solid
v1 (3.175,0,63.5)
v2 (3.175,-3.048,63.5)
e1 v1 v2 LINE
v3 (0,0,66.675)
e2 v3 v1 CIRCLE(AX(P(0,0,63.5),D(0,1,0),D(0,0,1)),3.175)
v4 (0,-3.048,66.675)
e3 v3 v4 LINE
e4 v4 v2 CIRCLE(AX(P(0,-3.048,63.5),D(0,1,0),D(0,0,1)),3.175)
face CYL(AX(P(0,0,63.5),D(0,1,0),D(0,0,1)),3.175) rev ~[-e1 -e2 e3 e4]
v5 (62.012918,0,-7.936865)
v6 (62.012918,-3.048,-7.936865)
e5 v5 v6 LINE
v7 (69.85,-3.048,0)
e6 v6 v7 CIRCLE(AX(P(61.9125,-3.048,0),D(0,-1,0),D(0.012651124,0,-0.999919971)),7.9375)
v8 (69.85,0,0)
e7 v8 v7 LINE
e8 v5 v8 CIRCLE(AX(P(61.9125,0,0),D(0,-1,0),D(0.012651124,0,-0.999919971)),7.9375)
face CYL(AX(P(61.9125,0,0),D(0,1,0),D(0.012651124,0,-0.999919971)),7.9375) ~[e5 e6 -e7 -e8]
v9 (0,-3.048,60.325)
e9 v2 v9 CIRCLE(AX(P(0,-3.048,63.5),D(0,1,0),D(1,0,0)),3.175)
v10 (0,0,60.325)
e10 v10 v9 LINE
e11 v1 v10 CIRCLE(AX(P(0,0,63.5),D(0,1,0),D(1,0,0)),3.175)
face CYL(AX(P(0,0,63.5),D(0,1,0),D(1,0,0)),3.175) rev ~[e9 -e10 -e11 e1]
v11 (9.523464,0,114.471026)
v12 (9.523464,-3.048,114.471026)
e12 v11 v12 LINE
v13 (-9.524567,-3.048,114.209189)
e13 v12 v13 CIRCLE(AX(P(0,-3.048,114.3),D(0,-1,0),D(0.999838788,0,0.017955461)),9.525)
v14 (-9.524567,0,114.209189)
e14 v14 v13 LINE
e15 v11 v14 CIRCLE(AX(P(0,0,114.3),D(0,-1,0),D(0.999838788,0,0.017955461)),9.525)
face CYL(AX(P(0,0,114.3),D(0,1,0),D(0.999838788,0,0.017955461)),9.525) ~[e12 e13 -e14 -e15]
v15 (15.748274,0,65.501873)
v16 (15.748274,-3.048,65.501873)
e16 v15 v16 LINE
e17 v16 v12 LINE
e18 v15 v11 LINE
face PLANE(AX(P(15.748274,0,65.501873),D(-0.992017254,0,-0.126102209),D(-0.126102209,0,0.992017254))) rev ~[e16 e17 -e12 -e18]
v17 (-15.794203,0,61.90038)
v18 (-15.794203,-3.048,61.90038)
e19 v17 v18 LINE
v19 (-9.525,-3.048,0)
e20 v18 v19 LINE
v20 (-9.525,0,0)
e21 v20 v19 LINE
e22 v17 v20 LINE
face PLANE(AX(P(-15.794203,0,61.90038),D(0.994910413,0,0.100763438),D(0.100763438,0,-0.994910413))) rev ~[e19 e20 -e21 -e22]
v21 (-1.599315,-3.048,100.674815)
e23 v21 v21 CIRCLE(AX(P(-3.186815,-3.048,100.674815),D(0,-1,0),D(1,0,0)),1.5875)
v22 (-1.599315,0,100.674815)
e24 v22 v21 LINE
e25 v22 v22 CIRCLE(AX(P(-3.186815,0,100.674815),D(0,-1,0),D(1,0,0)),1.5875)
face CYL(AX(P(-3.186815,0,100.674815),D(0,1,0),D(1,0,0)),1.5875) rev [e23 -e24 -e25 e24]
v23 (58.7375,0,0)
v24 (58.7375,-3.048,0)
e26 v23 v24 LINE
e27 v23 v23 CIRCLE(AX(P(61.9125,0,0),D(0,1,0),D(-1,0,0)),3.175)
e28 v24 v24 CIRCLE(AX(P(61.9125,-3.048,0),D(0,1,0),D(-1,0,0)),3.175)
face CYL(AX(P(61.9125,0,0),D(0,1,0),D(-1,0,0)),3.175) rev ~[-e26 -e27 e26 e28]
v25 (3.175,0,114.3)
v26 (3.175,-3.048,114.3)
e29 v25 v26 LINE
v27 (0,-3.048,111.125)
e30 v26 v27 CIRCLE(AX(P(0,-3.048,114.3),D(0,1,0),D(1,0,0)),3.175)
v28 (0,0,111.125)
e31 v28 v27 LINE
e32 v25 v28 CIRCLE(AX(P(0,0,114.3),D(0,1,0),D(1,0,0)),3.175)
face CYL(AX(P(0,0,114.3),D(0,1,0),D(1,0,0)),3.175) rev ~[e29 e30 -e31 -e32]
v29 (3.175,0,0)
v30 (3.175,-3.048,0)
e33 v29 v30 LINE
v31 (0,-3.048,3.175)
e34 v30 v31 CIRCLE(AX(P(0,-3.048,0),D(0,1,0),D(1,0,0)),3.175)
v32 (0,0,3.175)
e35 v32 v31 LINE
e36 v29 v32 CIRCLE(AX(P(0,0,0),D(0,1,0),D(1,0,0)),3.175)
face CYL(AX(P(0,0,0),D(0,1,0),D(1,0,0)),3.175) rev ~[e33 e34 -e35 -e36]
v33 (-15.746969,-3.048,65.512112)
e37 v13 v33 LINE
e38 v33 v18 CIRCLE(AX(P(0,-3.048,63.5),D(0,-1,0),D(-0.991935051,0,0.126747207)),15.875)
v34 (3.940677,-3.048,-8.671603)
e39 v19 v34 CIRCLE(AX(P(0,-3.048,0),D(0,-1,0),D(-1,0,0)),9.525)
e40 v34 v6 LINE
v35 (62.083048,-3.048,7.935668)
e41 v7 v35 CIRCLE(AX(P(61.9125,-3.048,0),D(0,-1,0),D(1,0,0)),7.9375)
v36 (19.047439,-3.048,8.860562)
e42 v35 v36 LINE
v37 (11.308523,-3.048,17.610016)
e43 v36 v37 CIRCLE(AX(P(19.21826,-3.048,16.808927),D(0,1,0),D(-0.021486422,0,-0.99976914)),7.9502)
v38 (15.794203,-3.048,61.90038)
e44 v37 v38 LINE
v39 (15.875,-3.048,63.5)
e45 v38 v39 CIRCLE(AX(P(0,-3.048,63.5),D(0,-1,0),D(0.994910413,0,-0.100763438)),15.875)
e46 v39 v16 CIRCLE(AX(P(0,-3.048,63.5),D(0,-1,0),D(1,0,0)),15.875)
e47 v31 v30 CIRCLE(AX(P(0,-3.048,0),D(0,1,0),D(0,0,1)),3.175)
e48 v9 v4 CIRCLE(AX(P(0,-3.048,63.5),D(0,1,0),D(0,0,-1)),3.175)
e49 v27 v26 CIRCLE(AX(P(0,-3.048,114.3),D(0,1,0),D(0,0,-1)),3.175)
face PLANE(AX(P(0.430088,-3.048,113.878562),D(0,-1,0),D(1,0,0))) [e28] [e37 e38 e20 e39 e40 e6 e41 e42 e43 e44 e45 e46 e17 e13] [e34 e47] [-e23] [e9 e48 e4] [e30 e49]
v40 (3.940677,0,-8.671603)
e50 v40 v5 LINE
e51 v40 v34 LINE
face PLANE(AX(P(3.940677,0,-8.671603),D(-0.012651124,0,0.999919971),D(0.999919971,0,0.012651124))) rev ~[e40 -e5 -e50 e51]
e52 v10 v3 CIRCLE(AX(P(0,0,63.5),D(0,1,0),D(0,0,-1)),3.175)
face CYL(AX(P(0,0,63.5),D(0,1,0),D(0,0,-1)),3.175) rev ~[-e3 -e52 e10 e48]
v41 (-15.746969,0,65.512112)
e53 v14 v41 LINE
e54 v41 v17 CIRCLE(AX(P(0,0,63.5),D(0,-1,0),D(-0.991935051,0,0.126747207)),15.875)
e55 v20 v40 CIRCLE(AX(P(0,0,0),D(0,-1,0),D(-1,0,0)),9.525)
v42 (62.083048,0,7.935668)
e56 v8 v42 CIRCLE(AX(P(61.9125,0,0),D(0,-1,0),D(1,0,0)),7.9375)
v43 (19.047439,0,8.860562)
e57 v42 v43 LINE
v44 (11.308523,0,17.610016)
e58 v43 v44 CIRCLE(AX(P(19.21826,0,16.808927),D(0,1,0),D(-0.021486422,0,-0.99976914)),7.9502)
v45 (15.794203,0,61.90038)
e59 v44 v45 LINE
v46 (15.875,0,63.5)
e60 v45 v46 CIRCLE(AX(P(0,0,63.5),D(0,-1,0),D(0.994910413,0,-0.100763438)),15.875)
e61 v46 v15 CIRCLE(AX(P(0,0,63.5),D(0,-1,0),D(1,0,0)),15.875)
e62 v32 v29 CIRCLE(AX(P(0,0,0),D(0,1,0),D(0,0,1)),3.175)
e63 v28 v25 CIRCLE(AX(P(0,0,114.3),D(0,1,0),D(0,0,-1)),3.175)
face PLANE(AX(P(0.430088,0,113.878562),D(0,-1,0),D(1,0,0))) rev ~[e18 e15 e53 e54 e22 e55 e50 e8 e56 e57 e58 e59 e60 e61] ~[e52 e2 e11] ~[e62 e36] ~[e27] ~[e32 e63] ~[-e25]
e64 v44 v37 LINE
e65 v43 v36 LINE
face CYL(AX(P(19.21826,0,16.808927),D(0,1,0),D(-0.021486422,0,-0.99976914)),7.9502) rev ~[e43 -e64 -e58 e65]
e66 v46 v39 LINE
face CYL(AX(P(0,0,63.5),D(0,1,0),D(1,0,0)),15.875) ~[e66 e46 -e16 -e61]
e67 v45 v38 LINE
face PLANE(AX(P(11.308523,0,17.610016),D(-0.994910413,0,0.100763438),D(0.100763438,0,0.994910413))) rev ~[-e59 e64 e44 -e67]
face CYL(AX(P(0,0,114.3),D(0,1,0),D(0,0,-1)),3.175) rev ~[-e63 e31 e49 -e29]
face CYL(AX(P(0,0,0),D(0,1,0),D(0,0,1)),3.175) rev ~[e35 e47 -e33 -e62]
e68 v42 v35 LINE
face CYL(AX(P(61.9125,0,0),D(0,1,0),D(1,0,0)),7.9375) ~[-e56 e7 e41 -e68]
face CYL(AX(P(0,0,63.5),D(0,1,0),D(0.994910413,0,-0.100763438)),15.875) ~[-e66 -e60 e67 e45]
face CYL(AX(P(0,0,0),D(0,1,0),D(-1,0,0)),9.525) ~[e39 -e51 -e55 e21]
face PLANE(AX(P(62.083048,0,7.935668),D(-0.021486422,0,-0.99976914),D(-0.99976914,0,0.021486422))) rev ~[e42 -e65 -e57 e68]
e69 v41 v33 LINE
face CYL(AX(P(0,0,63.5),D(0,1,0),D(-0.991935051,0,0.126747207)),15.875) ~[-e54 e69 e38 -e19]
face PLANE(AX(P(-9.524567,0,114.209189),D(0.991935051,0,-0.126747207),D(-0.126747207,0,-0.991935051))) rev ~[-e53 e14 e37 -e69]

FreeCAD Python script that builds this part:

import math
import FreeCAD as App
import Part
import Sketcher

V = App.Vector
Q = App.Units.Quantity

doc = App.newDocument("Part")
params = doc.addObject("Spreadsheet::Sheet", "Params")
for row, (alias, value) in enumerate([
    ("sketch1_diameter", "0.25 in"),
    ("sketch1_diameter2", "0.125 in"),
    ("sketch1_radius", "0.375 in"),
    ("sketch1_radius2", "0.3125 in"),
    ("sketch1_radius3", "0.313 in"),
    ("pad1_length", "0.12 in"),
], start=1):
    params.set(f"A{row}", alias)
    params.set(f"B{row}", "=" + value)
    params.setAlias(f"B{row}", alias)

body = doc.addObject("PartDesign::Body", "Body")

# Sketch on XZ plane
sketch1 = body.newObject("Sketcher::SketchObject", "Sketch")
sketch1.AttachmentSupport = (doc.getObject("XZ_Plane"), [""])
sketch1.MapMode = "FlatFace"
sketch1.addGeometry([
    Part.ArcOfCircle(Part.Circle(V(0, 0, 0), V(0, 0, 1), 9.525), math.radians(180), math.radians(294.438692)),  # 0
    Part.LineSegment(V(3.940677, -8.671603, 0), V(62.012918, -7.936865, 0)),  # 1
    Part.ArcOfCircle(Part.Circle(V(61.9125, 0, 0), V(0, 0, 1), 7.9375), math.radians(-89.275125), math.radians(0)),  # 2
    Part.ArcOfCircle(Part.Circle(V(61.9125, 0, 0), V(0, 0, 1), 7.9375), math.radians(0), math.radians(88.768824)),  # 3
    Part.LineSegment(V(62.083048, 7.935668, 0), V(19.047439, 8.860562, 0)),  # 4
    Part.ArcOfCircle(Part.Circle(V(19.21826, 16.808927, 0), V(0, 0, 1), 7.9502), math.radians(174.216866), math.radians(268.768824)),  # 5
    Part.LineSegment(V(11.308523, 17.610016, 0), V(15.794203, 61.90038, 0)),  # 6
    Part.ArcOfCircle(Part.Circle(V(0, 63.5, 0), V(0, 0, 1), 15.875), math.radians(-5.783134), math.radians(0)),  # 7
    Part.ArcOfCircle(Part.Circle(V(0, 63.5, 0), V(0, 0, 1), 15.875), math.radians(0), math.radians(7.244411)),  # 8
    Part.LineSegment(V(15.748274, 65.501873, 0), V(9.523464, 114.471026, 0)),  # 9
    Part.ArcOfCircle(Part.Circle(V(0, 114.3, 0), V(0, 0, 1), 9.525), math.radians(1.028827), math.radians(180.546265)),  # 10
    Part.LineSegment(V(-9.524567, 114.209189, 0), V(-15.746969, 65.512112, 0)),  # 11
    Part.ArcOfCircle(Part.Circle(V(0, 63.5, 0), V(0, 0, 1), 15.875), math.radians(172.718334), math.radians(185.783134)),  # 12
    Part.LineSegment(V(-15.794203, 61.90038, 0), V(-9.525, 0, 0)),  # 13
    Part.ArcOfCircle(Part.Circle(V(0, 0, 0), V(0, 0, 1), 3.175), math.radians(90), math.radians(360)),  # 14
    Part.ArcOfCircle(Part.Circle(V(0, 0, 0), V(0, 0, 1), 3.175), math.radians(0), math.radians(90)),  # 15
    Part.Circle(V(61.9125, 0, 0), V(0, 0, 1), 3.175),  # 16
    Part.ArcOfCircle(Part.Circle(V(0, 63.5, 0), V(0, 0, 1), 3.175), math.radians(0), math.radians(90)),  # 17
    Part.ArcOfCircle(Part.Circle(V(0, 63.5, 0), V(0, 0, 1), 3.175), math.radians(-90), math.radians(0)),  # 18
    Part.ArcOfCircle(Part.Circle(V(0, 63.5, 0), V(0, 0, 1), 3.175), math.radians(90), math.radians(270)),  # 19
    Part.Circle(V(-3.186815, 100.674815, 0), V(0, 0, 1), 1.5875),  # 20
    Part.ArcOfCircle(Part.Circle(V(0, 114.3, 0), V(0, 0, 1), 3.175), math.radians(0), math.radians(270)),  # 21
    Part.ArcOfCircle(Part.Circle(V(0, 114.3, 0), V(0, 0, 1), 3.175), math.radians(-90), math.radians(0)),  # 22
], False)
sketch1.addConstraint([
    Sketcher.Constraint("Coincident", 0, 2, 1, 1),
    Sketcher.Constraint("Coincident", 1, 2, 2, 1),
    Sketcher.Constraint("Coincident", 2, 2, 3, 1),
    Sketcher.Constraint("Coincident", 3, 2, 4, 1),
    Sketcher.Constraint("Coincident", 4, 2, 5, 2),
    Sketcher.Constraint("Coincident", 5, 1, 6, 1),
    Sketcher.Constraint("Coincident", 6, 2, 7, 1),
    Sketcher.Constraint("Coincident", 7, 2, 8, 1),
    Sketcher.Constraint("Coincident", 8, 2, 9, 1),
    Sketcher.Constraint("Coincident", 9, 2, 10, 1),
    Sketcher.Constraint("Coincident", 10, 2, 11, 1),
    Sketcher.Constraint("Coincident", 11, 2, 12, 1),
    Sketcher.Constraint("Coincident", 12, 2, 13, 1),
    Sketcher.Constraint("Coincident", 13, 2, 0, 1),
    Sketcher.Constraint("Coincident", 14, 1, 15, 2),
    Sketcher.Constraint("Coincident", 15, 1, 14, 2),
    Sketcher.Constraint("Coincident", 17, 1, 18, 2),
    Sketcher.Constraint("Coincident", 18, 1, 19, 2),
    Sketcher.Constraint("Coincident", 19, 1, 17, 2),
    Sketcher.Constraint("Coincident", 21, 1, 22, 2),
    Sketcher.Constraint("Coincident", 22, 1, 21, 2),
    Sketcher.Constraint("Coincident", 0, 3, -1, 1),
    Sketcher.Constraint("Coincident", 14, 3, -1, 1),
    Sketcher.Constraint("Coincident", 3, 3, 2, 3),
    Sketcher.Constraint("Coincident", 8, 3, 7, 3),
    Sketcher.Constraint("Coincident", 12, 3, 7, 3),
    Sketcher.Constraint("Coincident", 16, 3, 2, 3),
    Sketcher.Constraint("Coincident", 17, 3, 7, 3),
    Sketcher.Constraint("Coincident", 18, 3, 7, 3),
    Sketcher.Constraint("Coincident", 21, 3, 10, 3),
    Sketcher.Constraint("PointOnObject", 2, 3, -1),
    Sketcher.Constraint("PointOnObject", 7, 3, -2),
    Sketcher.Constraint("PointOnObject", 10, 3, -2),
    Sketcher.Constraint("PointOnObject", 19, 3, -2),
    Sketcher.Constraint("PointOnObject", 22, 3, -2),
    Sketcher.Constraint("PointOnObject", 2, 2, -1),
    Sketcher.Constraint("PointOnObject", 13, 2, -1),
    Sketcher.Constraint("PointOnObject", 14, 1, -2),
    Sketcher.Constraint("PointOnObject", 15, 1, -1),
    Sketcher.Constraint("PointOnObject", 18, 1, -2),
    Sketcher.Constraint("PointOnObject", 19, 1, -2),
    Sketcher.Constraint("PointOnObject", 22, 1, -2),
    Sketcher.Constraint("Diameter", 16, Q("0.25 in")),
    Sketcher.Constraint("Diameter", 20, Q("0.125 in")),
    Sketcher.Constraint("Radius", 0, Q("0.375 in")),
    Sketcher.Constraint("Radius", 2, Q("0.3125 in")),
    Sketcher.Constraint("Radius", 5, Q("0.313 in")),
    Sketcher.Constraint("Radius", 7, Q("0.625 in")),
    Sketcher.Constraint("Radius", 10, Q("0.375 in")),
    Sketcher.Constraint("Radius", 12, Q("0.625 in")),
    Sketcher.Constraint("Radius", 14, Q("0.125 in")),
    Sketcher.Constraint("Radius", 15, Q("0.125 in")),
    Sketcher.Constraint("Radius", 17, Q("0.125 in")),
    Sketcher.Constraint("Radius", 21, Q("0.125 in")),
    Sketcher.Constraint("DistanceY", 8, 3, 10, 3, Q("2 in")),
    Sketcher.Constraint("DistanceY", -1, 1, 7, 3, Q("2.5 in")),
    Sketcher.Constraint("DistanceY", -1, 1, 7, 2, Q("2.5 in")),
    Sketcher.Constraint("DistanceY", -1, 1, 17, 1, Q("2.5 in")),
    Sketcher.Constraint("DistanceY", -1, 1, 21, 1, Q("4.5 in")),
    Sketcher.Constraint("DistanceX", -1, 1, 2, 2, Q("2.75 in")),
    Sketcher.Constraint("Distance", 1, 58.07689),
    Sketcher.Constraint("Distance", 11, 49.09301),
    Sketcher.Constraint("Distance", 13, 62.217039),
    Sketcher.Constraint("DistanceX", -1, 1, 5, 3, 19.21826),
    Sketcher.Constraint("DistanceX", -1, 1, 1, 2, 62.012918),
    Sketcher.Constraint("DistanceX", -1, 1, 3, 2, 62.083048),
    Sketcher.Constraint("DistanceX", -1, 1, 4, 2, 19.047439),
    Sketcher.Constraint("DistanceY", -1, 1, 6, 2, 61.90038),
    Sketcher.Constraint("DistanceY", -1, 1, 10, 2, 114.209189),
    Sketcher.Constraint("DistanceY", 0, 2, 5, 3, 25.48053),
    Sketcher.Constraint("DistanceY", 5, 3, 5, 1, 0.801089),
    Sketcher.Constraint("DistanceX", 8, 2, 6, 2, 0.045929),
    Sketcher.Constraint("DistanceX", 20, 3, 9, 2, 12.71028),
    Sketcher.Constraint("DistanceY", 20, 3, 9, 2, 13.79621),
    Sketcher.Constraint("DistanceX", 9, 2, 8, 2, 6.224809),
])
sketch1.setExpression("Constraints[42]", "Params.sketch1_diameter")
sketch1.setExpression("Constraints[43]", "Params.sketch1_diameter2")
sketch1.setExpression("Constraints[44]", "Params.sketch1_radius")
sketch1.setExpression("Constraints[45]", "Params.sketch1_radius2")
sketch1.setExpression("Constraints[46]", "Params.sketch1_radius3")
pad1 = body.newObject("PartDesign::Pad", "Pad")
pad1.Profile = sketch1
pad1.setExpression("Length", "Params.pad1_length")

doc.recompute()
